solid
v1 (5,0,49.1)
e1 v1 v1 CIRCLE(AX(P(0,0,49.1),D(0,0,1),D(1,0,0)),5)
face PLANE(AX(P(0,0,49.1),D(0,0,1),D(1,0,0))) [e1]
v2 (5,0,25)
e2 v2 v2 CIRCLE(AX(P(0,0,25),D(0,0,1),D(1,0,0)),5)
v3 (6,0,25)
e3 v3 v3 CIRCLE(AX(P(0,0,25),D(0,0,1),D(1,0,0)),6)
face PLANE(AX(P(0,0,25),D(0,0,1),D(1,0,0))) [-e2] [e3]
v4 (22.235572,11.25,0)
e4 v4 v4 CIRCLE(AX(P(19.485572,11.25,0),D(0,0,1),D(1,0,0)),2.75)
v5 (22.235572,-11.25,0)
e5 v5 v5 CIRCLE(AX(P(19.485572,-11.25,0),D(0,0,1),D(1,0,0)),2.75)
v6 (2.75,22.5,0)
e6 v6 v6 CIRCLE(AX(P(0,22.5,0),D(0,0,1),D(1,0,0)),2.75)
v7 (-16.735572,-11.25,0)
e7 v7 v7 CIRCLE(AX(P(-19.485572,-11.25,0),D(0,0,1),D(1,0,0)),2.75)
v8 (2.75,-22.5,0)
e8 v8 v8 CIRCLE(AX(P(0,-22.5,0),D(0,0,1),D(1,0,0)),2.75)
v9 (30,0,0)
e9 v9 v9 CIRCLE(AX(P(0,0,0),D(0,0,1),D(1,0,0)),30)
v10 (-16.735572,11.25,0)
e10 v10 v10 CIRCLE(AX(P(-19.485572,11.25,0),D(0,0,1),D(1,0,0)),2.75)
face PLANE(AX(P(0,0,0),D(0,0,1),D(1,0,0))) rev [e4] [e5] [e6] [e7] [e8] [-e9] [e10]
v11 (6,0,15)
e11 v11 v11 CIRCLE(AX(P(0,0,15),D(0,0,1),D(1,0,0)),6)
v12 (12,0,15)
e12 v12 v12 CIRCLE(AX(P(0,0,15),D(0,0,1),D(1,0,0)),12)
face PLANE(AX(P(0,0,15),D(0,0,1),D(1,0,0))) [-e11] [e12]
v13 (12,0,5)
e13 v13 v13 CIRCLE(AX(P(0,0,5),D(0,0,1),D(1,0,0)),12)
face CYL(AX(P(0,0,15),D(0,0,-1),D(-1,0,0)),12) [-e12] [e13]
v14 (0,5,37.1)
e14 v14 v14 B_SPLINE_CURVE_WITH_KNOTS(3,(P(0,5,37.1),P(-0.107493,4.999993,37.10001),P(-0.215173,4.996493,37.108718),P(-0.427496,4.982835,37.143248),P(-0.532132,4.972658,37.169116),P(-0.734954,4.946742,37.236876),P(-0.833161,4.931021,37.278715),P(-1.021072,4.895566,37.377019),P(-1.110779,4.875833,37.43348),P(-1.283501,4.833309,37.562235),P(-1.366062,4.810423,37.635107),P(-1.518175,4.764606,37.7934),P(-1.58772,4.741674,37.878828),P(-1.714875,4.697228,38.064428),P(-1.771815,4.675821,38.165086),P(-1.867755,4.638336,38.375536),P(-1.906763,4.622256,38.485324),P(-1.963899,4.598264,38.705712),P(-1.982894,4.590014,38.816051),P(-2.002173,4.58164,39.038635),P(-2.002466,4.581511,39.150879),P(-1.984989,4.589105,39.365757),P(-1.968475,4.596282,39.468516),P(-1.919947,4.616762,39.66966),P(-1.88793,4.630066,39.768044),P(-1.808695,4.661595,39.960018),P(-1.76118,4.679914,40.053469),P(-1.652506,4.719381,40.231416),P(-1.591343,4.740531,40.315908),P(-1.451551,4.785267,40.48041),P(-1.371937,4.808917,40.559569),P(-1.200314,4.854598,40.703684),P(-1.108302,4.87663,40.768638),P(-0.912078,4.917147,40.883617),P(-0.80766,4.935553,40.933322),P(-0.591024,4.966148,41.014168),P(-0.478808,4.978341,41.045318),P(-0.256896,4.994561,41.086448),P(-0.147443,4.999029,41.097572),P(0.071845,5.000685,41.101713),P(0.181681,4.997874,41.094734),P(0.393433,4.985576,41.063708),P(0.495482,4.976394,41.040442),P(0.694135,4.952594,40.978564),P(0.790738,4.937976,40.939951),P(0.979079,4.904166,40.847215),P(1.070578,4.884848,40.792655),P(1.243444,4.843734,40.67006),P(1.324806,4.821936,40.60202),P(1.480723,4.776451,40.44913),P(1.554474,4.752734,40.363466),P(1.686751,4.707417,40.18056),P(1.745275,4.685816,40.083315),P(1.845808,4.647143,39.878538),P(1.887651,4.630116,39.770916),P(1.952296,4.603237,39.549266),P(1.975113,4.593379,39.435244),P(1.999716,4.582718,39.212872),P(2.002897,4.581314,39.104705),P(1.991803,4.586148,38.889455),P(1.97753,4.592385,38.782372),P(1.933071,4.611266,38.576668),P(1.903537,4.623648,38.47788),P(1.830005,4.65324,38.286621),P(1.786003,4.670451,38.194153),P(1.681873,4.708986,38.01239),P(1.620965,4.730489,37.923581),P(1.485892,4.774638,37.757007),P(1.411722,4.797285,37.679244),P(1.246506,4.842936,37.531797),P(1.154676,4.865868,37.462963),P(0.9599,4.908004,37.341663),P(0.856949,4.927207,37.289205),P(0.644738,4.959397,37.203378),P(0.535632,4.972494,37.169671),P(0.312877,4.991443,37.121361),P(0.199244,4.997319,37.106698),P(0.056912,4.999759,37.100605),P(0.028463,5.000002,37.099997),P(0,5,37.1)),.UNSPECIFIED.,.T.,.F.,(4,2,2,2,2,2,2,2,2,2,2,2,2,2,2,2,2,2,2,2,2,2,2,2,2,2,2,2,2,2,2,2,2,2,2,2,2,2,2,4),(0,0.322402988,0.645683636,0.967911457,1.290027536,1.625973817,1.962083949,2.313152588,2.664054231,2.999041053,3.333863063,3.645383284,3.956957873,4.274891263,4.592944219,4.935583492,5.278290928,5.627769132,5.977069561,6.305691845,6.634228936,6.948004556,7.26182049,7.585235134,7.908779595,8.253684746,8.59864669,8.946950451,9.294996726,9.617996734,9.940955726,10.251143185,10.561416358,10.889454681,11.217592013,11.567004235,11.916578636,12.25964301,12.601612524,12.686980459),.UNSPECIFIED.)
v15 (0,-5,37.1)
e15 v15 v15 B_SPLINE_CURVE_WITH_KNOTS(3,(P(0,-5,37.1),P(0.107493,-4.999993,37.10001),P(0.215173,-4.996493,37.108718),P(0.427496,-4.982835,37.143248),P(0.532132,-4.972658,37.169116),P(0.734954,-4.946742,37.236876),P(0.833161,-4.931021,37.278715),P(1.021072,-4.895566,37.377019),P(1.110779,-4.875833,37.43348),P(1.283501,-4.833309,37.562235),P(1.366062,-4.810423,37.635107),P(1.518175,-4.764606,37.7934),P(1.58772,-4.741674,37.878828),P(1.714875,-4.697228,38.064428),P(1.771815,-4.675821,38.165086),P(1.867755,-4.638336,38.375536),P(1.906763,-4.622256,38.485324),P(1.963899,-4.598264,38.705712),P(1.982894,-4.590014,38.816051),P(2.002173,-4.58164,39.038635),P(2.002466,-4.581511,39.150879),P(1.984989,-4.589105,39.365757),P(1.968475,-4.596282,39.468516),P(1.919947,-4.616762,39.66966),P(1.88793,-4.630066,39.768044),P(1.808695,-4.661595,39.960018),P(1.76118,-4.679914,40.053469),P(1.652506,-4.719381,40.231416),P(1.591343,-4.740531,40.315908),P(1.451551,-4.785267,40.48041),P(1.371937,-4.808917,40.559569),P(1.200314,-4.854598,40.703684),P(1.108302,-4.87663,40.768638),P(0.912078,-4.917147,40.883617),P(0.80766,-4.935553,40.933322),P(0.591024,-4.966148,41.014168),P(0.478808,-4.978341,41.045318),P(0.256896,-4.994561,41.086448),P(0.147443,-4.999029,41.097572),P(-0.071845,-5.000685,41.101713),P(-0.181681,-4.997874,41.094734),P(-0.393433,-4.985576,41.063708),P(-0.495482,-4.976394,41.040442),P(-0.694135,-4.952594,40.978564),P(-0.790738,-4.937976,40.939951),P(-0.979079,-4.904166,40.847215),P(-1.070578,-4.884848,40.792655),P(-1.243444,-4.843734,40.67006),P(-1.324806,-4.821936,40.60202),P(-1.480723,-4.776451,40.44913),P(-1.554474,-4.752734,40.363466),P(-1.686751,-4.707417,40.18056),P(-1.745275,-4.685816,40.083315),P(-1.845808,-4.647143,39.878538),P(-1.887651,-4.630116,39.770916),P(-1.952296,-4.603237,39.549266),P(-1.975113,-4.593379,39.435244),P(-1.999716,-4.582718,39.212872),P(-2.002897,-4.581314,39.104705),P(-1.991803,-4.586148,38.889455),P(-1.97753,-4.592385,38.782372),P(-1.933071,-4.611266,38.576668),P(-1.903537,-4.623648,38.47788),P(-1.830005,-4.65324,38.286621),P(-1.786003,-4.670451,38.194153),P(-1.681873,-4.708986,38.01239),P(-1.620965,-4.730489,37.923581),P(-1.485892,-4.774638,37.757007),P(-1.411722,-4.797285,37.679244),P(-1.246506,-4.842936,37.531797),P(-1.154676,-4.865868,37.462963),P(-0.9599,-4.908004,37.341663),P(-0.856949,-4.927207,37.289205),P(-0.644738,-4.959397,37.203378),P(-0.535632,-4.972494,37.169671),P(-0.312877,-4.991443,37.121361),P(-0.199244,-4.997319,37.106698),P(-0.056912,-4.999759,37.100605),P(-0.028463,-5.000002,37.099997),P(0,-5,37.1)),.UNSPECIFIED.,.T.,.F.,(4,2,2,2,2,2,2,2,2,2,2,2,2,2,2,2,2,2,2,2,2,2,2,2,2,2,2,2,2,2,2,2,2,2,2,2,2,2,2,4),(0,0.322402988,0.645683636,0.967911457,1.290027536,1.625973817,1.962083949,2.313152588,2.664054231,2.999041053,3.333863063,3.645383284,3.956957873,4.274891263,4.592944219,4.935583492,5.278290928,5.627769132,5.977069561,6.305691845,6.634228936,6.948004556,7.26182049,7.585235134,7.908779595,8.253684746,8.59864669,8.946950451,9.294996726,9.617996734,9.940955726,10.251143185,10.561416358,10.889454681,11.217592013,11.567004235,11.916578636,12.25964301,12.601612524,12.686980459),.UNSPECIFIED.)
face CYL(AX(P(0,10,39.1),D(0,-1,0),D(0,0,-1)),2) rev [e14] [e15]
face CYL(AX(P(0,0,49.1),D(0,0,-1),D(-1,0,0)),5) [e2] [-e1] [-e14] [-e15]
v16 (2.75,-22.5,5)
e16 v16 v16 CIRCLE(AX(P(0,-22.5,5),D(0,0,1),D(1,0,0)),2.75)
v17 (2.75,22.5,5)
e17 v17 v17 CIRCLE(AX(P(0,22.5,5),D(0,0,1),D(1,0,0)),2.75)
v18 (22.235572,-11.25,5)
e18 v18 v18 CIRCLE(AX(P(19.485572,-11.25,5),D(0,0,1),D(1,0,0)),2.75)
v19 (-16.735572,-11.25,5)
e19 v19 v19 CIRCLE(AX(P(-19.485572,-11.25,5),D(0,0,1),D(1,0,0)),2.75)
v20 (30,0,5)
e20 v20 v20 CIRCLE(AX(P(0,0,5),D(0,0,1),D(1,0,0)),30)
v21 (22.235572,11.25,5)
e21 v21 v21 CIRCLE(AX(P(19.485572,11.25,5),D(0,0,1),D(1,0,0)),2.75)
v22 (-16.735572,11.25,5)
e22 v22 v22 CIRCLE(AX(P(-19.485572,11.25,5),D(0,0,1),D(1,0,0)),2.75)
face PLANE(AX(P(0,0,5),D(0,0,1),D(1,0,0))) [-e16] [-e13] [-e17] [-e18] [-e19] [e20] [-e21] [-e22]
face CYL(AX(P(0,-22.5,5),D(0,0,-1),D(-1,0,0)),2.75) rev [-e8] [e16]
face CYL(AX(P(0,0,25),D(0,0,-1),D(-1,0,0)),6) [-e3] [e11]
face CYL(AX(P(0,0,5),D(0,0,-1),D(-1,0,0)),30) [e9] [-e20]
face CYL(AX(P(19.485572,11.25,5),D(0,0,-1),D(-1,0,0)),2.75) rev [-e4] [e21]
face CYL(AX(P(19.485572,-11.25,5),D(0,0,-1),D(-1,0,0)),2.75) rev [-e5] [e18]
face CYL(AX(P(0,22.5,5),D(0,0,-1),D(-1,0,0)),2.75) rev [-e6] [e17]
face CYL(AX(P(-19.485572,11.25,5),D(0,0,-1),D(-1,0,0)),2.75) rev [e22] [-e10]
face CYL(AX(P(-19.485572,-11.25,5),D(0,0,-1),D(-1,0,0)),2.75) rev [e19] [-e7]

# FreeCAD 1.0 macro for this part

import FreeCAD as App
import Part
import Sketcher

V = App.Vector
Q = App.Units.Quantity

doc = App.newDocument("Part")
body = doc.addObject("PartDesign::Body", "Body")

# Sketch on XY plane
sketch1 = body.newObject("Sketcher::SketchObject", "Sketch")
sketch1.AttachmentSupport = (doc.getObject("XY_Plane"), [""])
sketch1.MapMode = "FlatFace"
sketch1.addGeometry([
    Part.Circle(V(0, 0, 0), V(0, 0, 1), 30),  # 0
    Part.Circle(V(-19.485572, -11.25, 0), V(0, 0, 1), 2.75),  # 1
    Part.Circle(V(0, -22.5, 0), V(0, 0, 1), 2.75),  # 2
    Part.Circle(V(19.485572, -11.25, 0), V(0, 0, 1), 2.75),  # 3
    Part.Circle(V(-19.485572, 11.25, 0), V(0, 0, 1), 2.75),  # 4
    Part.Circle(V(19.485572, 11.25, 0), V(0, 0, 1), 2.75),  # 5
    Part.Circle(V(0, 22.5, 0), V(0, 0, 1), 2.75),  # 6
], False)
sketch1.addConstraint([
    Sketcher.Constraint("Coincident", 0, 3, -1, 1),
    Sketcher.Constraint("Equal", 1, 2),
    Sketcher.Constraint("Equal", 2, 3),
    Sketcher.Constraint("Equal", 3, 4),
    Sketcher.Constraint("Equal", 4, 5),
    Sketcher.Constraint("Equal", 5, 6),
    Sketcher.Constraint("Symmetric", 3, 3, 4, 3, -1, 1),
    Sketcher.Constraint("Symmetric", 1, 3, 5, 3, -1, 1),
    Sketcher.Constraint("Symmetric", 2, 3, 6, 3, -1, 1),
    Sketcher.Constraint("Symmetric", 1, 3, 3, 3, -2),
    Sketcher.Constraint("PointOnObject", 2, 3, -2),
    Sketcher.Constraint("Diameter", 0, Q("60 mm")),
    Sketcher.Constraint("Diameter", 1, Q("5.5 mm")),
    Sketcher.Constraint("DistanceY", 2, 3, -1, 1, Q("22.5 mm")),
    Sketcher.Constraint("DistanceY", 1, 3, 4, 3, Q("22.5 mm")),
    Sketcher.Constraint("DistanceX", 1, 3, -1, 1, Q("19.485572 mm")),
])
pad1 = body.newObject("PartDesign::Pad", "Pad")
pad1.Profile = sketch1
pad1.Length = 5

# Sketch on XY plane
sketch2 = body.newObject("Sketcher::SketchObject", "Sketch001")
sketch2.AttachmentSupport = (doc.getObject("XY_Plane"), [""])
sketch2.MapMode = "FlatFace"
sketch2.AttachmentOffset = App.Placement(V(0, 0, 5), App.Rotation())
sketch2.addGeometry(Part.Circle(V(0, 0, 0), V(0, 0, 1), 12), False)
sketch2.addConstraint([
    Sketcher.Constraint("Coincident", 0, 3, -1, 1),
    Sketcher.Constraint("Diameter", 0, Q("24 mm")),
])
pad2 = body.newObject("PartDesign::Pad", "Pad001")
pad2.Profile = sketch2
pad2.Length = 10

# Sketch on XY plane
sketch3 = body.newObject("Sketcher::SketchObject", "Sketch002")
sketch3.AttachmentSupport = (doc.getObject("XY_Plane"), [""])
sketch3.MapMode = "FlatFace"
sketch3.AttachmentOffset = App.Placement(V(0, 0, 15), App.Rotation())
sketch3.addGeometry(Part.Circle(V(0, 0, 0), V(0, 0, 1), 6), False)
sketch3.addConstraint([
    Sketcher.Constraint("Coincident", 0, 3, -1, 1),
    Sketcher.Constraint("Diameter", 0, Q("12 mm")),
])
pad3 = body.newObject("PartDesign::Pad", "Pad002")
pad3.Profile = sketch3
pad3.Length = 10

# Sketch on XY plane
sketch4 = body.newObject("Sketcher::SketchObject", "Sketch003")
sketch4.AttachmentSupport = (doc.getObject("XY_Plane"), [""])
sketch4.MapMode = "FlatFace"
sketch4.AttachmentOffset = App.Placement(V(0, 0, 25), App.Rotation())
sketch4.addGeometry(Part.Circle(V(0, 0, 0), V(0, 0, 1), 5), False)
sketch4.addConstraint([
    Sketcher.Constraint("Coincident", 0, 3, -1, 1),
    Sketcher.Constraint("Diameter", 0, Q("10 mm")),
])
pad4 = body.newObject("PartDesign::Pad", "Pad003")
pad4.Profile = sketch4
pad4.Length = 24.1

# Sketch on XZ plane
sketch5 = body.newObject("Sketcher::SketchObject", "Sketch004")
sketch5.AttachmentSupport = (doc.getObject("XZ_Plane"), [""])
sketch5.MapMode = "FlatFace"
sketch5.addGeometry(Part.Circle(V(0, 39.1, 0), V(0, 0, 1), 2), False)
sketch5.addConstraint([
    Sketcher.Constraint("PointOnObject", 0, 3, -2),
    Sketcher.Constraint("Diameter", 0, Q("4 mm")),
    Sketcher.Constraint("DistanceY", -1, 1, 0, 3, Q("39.1 mm")),
])
pocket1 = body.newObject("PartDesign::Pocket", "Pocket")
pocket1.Profile = sketch5
pocket1.Type = "ThroughAll"
pocket1.Midplane = True

doc.recompute()
